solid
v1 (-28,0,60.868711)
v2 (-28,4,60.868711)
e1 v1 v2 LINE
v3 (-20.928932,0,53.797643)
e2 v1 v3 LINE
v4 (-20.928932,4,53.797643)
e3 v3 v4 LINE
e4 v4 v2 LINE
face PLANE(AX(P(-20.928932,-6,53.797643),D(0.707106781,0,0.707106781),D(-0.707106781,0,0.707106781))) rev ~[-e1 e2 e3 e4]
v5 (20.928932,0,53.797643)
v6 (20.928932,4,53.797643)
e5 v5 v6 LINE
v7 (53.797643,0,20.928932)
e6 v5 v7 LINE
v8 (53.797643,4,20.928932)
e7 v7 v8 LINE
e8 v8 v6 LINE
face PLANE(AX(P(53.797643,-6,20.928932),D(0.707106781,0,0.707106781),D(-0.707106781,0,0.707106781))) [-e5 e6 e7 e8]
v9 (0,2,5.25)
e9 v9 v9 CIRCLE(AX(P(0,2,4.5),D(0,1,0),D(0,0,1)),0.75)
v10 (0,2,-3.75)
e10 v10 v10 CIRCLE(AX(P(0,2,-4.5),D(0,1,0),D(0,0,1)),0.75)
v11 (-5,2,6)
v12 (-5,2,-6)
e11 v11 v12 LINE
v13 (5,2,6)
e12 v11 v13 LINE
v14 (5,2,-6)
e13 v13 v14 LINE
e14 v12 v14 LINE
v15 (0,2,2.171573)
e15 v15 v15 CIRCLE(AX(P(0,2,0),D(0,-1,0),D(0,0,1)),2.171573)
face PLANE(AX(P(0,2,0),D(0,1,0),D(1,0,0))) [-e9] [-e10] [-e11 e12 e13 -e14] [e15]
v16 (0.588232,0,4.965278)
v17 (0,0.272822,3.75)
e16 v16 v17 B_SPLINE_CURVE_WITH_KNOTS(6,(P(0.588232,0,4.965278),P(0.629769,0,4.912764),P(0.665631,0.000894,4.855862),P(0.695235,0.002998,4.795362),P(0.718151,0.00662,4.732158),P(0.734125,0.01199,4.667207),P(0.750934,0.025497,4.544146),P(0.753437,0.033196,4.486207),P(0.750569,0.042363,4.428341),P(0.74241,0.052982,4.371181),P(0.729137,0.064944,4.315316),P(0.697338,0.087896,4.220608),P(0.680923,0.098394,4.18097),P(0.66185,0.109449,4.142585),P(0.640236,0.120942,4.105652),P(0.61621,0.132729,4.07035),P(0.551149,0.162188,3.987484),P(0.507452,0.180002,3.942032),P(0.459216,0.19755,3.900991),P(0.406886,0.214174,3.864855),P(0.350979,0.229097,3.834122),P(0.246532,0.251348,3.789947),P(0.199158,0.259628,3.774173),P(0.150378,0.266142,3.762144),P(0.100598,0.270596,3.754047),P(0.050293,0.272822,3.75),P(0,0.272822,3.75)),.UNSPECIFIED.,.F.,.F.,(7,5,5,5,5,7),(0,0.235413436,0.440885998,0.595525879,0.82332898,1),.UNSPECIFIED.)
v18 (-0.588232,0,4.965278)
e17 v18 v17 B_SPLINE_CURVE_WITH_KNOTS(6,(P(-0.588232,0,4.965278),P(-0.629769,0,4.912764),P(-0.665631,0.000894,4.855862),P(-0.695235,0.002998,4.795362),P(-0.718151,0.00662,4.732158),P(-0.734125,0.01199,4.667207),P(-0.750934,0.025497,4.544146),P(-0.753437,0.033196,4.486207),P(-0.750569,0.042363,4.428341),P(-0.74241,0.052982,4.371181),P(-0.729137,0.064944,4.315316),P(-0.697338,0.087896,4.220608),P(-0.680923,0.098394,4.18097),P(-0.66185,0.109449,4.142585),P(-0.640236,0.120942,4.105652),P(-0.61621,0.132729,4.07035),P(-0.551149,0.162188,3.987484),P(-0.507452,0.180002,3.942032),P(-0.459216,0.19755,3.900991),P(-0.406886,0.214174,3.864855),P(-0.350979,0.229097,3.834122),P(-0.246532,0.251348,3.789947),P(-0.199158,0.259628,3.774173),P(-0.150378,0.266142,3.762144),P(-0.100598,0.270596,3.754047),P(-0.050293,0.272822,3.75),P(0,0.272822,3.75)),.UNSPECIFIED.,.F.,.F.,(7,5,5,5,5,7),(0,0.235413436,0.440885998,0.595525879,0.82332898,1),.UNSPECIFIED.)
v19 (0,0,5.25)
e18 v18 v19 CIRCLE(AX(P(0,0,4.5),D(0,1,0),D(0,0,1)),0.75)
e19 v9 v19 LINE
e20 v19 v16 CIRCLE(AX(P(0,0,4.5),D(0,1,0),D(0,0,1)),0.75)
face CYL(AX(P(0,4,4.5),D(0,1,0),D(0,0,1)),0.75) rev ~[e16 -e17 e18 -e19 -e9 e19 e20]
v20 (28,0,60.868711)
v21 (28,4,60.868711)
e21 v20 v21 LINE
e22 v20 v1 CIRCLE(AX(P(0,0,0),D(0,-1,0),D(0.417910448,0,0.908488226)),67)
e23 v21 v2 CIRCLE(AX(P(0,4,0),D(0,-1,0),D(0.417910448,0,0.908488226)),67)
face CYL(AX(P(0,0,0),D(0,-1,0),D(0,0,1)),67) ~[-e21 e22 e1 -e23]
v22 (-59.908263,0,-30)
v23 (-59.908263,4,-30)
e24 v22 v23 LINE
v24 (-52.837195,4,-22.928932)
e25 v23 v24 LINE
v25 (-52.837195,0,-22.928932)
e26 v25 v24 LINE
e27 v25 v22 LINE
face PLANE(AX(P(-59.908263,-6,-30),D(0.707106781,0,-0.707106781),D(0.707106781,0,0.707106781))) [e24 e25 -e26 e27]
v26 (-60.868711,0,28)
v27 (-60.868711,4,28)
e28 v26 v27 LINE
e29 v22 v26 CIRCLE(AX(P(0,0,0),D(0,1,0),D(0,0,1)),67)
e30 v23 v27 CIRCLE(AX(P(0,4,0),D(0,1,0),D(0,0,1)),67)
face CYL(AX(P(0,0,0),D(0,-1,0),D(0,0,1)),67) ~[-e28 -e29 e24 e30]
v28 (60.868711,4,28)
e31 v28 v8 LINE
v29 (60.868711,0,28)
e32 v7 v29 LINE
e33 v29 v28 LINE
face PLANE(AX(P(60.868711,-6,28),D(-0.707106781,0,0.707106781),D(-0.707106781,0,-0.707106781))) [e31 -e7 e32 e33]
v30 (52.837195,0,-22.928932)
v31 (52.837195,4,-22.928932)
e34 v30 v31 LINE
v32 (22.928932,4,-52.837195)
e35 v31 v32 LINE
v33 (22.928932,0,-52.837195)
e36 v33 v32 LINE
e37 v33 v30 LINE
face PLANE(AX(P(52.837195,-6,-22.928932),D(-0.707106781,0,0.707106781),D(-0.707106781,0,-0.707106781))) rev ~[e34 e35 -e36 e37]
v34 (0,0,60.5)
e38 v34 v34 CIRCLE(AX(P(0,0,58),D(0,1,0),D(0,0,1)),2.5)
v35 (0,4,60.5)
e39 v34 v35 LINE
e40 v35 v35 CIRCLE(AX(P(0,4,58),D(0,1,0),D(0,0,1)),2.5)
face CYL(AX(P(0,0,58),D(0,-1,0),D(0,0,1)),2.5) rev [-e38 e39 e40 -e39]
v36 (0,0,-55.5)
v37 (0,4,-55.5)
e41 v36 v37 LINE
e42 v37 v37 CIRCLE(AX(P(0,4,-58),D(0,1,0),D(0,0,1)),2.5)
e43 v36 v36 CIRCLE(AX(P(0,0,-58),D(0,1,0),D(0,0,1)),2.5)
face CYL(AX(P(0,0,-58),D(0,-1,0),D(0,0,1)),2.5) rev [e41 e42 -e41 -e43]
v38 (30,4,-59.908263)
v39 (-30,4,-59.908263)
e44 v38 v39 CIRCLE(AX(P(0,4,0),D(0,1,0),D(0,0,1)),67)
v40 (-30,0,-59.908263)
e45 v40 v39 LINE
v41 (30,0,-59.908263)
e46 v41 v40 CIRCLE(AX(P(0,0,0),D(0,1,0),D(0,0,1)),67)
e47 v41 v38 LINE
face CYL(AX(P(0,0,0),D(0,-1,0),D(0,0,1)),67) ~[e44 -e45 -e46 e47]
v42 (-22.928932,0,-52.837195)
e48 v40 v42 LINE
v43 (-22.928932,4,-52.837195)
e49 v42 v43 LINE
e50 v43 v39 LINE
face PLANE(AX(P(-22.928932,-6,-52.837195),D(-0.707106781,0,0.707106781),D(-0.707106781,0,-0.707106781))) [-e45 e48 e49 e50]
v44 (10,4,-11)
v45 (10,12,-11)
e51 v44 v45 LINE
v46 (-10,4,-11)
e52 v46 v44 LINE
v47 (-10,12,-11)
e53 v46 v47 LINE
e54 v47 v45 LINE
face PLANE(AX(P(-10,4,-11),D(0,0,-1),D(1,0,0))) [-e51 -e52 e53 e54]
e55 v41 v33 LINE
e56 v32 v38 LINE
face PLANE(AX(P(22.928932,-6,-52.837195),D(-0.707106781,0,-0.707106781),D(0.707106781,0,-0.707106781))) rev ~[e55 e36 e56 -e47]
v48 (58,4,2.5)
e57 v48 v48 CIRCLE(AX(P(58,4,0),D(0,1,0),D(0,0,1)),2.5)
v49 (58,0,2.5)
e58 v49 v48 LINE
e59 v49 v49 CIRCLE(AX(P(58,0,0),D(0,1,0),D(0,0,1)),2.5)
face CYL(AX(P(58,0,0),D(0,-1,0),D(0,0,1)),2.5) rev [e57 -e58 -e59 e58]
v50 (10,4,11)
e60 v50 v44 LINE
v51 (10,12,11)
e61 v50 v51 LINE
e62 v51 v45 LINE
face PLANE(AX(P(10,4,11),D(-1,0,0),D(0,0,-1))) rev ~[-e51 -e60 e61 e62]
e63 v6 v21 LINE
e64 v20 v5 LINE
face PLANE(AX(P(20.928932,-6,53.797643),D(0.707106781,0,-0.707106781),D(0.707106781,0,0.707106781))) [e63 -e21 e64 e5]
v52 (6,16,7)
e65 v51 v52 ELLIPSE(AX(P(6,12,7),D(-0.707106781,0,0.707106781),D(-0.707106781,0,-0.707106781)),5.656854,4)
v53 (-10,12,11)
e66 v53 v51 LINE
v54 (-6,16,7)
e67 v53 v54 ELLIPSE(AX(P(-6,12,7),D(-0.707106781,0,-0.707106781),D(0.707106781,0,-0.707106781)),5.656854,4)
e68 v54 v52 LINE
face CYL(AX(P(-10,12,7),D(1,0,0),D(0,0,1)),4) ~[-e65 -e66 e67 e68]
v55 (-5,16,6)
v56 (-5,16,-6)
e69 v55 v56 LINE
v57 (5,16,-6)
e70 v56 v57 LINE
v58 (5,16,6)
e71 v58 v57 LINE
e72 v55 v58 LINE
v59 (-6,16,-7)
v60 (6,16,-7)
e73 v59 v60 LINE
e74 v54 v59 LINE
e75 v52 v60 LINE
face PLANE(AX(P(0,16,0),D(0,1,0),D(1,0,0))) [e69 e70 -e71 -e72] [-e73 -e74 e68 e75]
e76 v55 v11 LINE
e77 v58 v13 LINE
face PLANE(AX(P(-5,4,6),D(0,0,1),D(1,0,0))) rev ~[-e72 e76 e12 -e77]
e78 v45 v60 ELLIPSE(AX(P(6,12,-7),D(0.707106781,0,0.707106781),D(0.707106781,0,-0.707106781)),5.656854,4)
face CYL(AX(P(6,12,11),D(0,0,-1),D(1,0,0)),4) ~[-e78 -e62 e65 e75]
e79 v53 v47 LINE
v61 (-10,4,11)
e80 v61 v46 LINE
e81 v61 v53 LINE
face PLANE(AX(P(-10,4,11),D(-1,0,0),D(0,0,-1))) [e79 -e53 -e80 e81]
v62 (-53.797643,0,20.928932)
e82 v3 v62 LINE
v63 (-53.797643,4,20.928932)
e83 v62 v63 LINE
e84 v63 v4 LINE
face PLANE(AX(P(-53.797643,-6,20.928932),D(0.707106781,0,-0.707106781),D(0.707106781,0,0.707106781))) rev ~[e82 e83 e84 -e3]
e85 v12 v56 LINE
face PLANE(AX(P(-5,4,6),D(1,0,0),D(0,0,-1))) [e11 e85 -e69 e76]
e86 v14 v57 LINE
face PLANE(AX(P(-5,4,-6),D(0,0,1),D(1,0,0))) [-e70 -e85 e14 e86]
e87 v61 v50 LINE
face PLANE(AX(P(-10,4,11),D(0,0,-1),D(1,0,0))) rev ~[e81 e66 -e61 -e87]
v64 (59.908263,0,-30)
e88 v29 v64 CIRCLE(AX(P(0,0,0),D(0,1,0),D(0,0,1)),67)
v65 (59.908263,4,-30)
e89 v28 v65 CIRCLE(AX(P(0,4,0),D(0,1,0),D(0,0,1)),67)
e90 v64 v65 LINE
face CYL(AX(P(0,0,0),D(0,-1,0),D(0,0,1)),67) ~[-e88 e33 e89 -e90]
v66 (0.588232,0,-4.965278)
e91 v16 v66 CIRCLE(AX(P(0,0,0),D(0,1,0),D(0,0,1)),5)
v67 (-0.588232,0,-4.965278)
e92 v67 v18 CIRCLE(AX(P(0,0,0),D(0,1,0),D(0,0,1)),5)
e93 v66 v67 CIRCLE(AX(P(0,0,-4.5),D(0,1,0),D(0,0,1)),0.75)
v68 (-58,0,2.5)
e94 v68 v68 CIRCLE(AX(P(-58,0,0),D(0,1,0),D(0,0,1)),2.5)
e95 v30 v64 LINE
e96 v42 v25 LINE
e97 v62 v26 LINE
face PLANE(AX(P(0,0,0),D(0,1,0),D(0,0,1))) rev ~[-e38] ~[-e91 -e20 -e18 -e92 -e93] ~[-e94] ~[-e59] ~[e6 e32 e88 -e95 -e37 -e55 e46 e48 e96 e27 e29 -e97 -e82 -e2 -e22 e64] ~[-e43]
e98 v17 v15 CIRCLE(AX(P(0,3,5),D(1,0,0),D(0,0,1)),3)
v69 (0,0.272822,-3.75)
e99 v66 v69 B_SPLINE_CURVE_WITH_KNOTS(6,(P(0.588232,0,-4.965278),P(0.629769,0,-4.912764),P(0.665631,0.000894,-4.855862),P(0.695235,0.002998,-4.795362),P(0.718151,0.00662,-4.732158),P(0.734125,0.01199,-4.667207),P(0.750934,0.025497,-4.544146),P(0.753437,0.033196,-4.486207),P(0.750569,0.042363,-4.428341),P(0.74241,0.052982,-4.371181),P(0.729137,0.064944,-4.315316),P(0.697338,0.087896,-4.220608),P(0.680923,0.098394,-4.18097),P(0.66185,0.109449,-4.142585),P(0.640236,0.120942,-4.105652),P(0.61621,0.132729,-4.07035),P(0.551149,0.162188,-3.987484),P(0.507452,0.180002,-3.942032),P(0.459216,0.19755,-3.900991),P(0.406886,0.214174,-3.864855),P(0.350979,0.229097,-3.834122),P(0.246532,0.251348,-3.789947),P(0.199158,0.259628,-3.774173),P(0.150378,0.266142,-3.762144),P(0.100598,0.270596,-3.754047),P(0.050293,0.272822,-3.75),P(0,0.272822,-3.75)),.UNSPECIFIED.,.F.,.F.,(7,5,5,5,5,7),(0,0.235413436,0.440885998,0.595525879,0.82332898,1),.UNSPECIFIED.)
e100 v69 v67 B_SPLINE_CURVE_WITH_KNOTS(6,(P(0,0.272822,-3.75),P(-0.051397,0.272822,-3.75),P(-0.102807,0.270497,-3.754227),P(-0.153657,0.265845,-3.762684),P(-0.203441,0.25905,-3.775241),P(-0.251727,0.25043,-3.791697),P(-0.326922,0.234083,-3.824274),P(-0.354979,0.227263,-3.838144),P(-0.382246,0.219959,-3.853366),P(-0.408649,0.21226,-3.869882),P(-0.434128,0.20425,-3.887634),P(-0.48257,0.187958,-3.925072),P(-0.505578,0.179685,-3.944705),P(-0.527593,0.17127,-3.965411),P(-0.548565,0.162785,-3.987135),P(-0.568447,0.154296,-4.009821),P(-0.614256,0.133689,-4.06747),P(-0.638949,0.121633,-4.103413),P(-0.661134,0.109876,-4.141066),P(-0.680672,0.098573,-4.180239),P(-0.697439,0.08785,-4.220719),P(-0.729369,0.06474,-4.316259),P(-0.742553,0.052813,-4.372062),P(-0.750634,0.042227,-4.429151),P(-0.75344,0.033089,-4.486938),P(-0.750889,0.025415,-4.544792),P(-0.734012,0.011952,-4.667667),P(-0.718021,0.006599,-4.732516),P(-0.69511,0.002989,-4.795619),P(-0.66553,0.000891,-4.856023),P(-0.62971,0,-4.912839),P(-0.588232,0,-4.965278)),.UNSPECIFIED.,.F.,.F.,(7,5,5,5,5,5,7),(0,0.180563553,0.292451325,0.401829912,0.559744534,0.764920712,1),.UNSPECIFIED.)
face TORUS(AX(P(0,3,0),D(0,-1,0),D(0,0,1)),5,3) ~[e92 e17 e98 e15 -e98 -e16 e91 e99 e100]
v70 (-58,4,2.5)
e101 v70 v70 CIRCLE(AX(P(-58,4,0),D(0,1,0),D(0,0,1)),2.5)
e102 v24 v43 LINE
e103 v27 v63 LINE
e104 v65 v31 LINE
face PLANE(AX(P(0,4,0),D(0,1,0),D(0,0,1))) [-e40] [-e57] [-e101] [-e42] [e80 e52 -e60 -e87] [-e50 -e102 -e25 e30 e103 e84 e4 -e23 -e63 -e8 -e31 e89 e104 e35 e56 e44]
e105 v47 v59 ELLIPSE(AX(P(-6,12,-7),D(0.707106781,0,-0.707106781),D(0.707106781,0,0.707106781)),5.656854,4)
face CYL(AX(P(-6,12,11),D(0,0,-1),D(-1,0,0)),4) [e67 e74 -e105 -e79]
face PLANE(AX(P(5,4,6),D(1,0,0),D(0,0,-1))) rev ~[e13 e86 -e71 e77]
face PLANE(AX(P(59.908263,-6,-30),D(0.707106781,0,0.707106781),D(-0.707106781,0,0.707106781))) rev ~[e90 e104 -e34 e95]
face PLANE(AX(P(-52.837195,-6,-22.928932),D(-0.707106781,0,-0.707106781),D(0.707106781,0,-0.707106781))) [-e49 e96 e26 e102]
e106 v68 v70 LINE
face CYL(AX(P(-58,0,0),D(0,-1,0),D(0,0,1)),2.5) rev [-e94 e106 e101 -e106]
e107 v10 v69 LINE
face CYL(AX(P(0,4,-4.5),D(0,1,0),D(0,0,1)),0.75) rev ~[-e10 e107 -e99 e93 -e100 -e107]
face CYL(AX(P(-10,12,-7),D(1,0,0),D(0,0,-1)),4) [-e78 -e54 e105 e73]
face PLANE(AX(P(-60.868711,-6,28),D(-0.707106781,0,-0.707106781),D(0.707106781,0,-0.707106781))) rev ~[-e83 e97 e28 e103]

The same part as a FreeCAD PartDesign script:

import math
import FreeCAD as App
import Part
import Sketcher

V = App.Vector
Q = App.Units.Quantity


def edges_at(feature, points):
    """Names of the edges that pass closest to the given points."""
    edges = feature.Shape.Edges
    near = lambda p: min(range(len(edges)), key=lambda i: edges[i].distToShape(Part.Vertex(*p))[0])
    return sorted({f"Edge{near(p) + 1}" for p in points})


def add_polygon(sketch, points):
    """Adds a closed chain of lines whose ends are joined by coincident constraints."""
    first, n = sketch.GeometryCount, len(points)
    for a, b in zip(points, points[1:] + points[:1]):
        sketch.addGeometry(Part.LineSegment(App.Vector(*a, 0), App.Vector(*b, 0)), False)
    for i in range(n):
        sketch.addConstraint(Sketcher.Constraint("Coincident", first + i, 2, first + (i + 1) % n, 1))

doc = App.newDocument("Part")
body = doc.addObject("PartDesign::Body", "Body")

# Sketch on XZ plane
sketch1 = doc.addObject("Sketcher::SketchObject", "Sketch")
body.addObject(sketch1)
sketch1.AttachmentSupport = (doc.XZ_Plane, [""])
sketch1.MapMode = "FlatFace"
sketch1.addGeometry(Part.Circle(V(0, 0, 0), V(0, 0, 1), 67), False)
sketch1.addGeometry(Part.Circle(V(0, -58, 0), V(0, 0, 1), 2.5), False)
sketch1.addGeometry(Part.Circle(V(-58, 0, 0), V(0, 0, 1), 2.5), False)
sketch1.addGeometry(Part.Circle(V(58, 0, 0), V(0, 0, 1), 2.5), False)
sketch1.addGeometry(Part.Circle(V(0, 58, 0), V(0, 0, 1), 2.5), False)
sketch1.addConstraint(Sketcher.Constraint("Coincident", 0, 3, -1, 1))
sketch1.addConstraint(Sketcher.Constraint("Equal", 1, 2))
sketch1.addConstraint(Sketcher.Constraint("Equal", 2, 3))
sketch1.addConstraint(Sketcher.Constraint("Equal", 3, 4))
sketch1.addConstraint(Sketcher.Constraint("Symmetric", 2, 3, 3, 3, -1, 1))
sketch1.addConstraint(Sketcher.Constraint("Symmetric", 1, 3, 4, 3, -1, 1))
sketch1.addConstraint(Sketcher.Constraint("PointOnObject", 1, 3, -2))
sketch1.addConstraint(Sketcher.Constraint("PointOnObject", 2, 3, -1))
sketch1.addConstraint(Sketcher.Constraint("Diameter", 0, Q("134 mm")))
sketch1.addConstraint(Sketcher.Constraint("Diameter", 1, Q("5 mm")))
sketch1.addConstraint(Sketcher.Constraint("DistanceY", 1, 3, -1, 1, Q("58 mm")))
sketch1.addConstraint(Sketcher.Constraint("DistanceX", 2, 3, -1, 1, Q("58 mm")))
pad1 = doc.addObject("PartDesign::Pad", "Pad")
body.addObject(pad1)
pad1.Profile = sketch1
pad1.Length = 4
pad1.Reversed = True

# Sketch on XZ plane
sketch2 = doc.addObject("Sketcher::SketchObject", "Sketch001")
body.addObject(sketch2)
sketch2.AttachmentSupport = (doc.XZ_Plane, [""])
sketch2.MapMode = "FlatFace"
sketch2.AttachmentOffset = App.Placement(V(0, 0, -4), App.Rotation())
sketch2.addGeometry(Part.Circle(V(0, 0, 0), V(0, 0, 1), 2), False)
sketch2.addConstraint(Sketcher.Constraint("Coincident", 0, 3, -1, 1))
sketch2.addConstraint(Sketcher.Constraint("Diameter", 0, Q("4 mm")))
pocket1 = doc.addObject("PartDesign::Pocket", "Pocket")
body.addObject(pocket1)
pocket1.Profile = sketch2
pocket1.Length = 4
pocket1.Reversed = True

# Sketch on XZ plane
sketch3 = doc.addObject("Sketcher::SketchObject", "Sketch002")
body.addObject(sketch3)
sketch3.AttachmentSupport = (doc.XZ_Plane, [""])
sketch3.MapMode = "FlatFace"
sketch3.AttachmentOffset = App.Placement(V(0, 0, -4), App.Rotation())
add_polygon(sketch3, [(-10, -11), (-10, 11), (10, 11), (10, -11)])  # lines 0-3
add_polygon(sketch3, [(5, 6), (-5, 6), (-5, -6), (5, -6)])  # lines 4-7
sketch3.addConstraint(Sketcher.Constraint("Vertical", 0))
sketch3.addConstraint(Sketcher.Constraint("Horizontal", 1))
sketch3.addConstraint(Sketcher.Constraint("Vertical", 2))
sketch3.addConstraint(Sketcher.Constraint("Horizontal", 3))
sketch3.addConstraint(Sketcher.Constraint("Horizontal", 4))
sketch3.addConstraint(Sketcher.Constraint("Vertical", 5))
sketch3.addConstraint(Sketcher.Constraint("Horizontal", 6))
sketch3.addConstraint(Sketcher.Constraint("Vertical", 7))
sketch3.addConstraint(Sketcher.Constraint("Symmetric", 0, 2, 2, 2, -1, 1))
sketch3.addConstraint(Sketcher.Constraint("Symmetric", 4, 2, 6, 2, -1, 1))
sketch3.addConstraint(Sketcher.Constraint("DistanceX", 1, 1, 1, 2, Q("20 mm")))
sketch3.addConstraint(Sketcher.Constraint("DistanceX", 4, 2, 4, 1, Q("10 mm")))
sketch3.addConstraint(Sketcher.Constraint("DistanceY", 0, 1, 0, 2, Q("22 mm")))
sketch3.addConstraint(Sketcher.Constraint("DistanceY", 5, 2, 5, 1, Q("12 mm")))
pad2 = doc.addObject("PartDesign::Pad", "Pad001")
body.addObject(pad2)
pad2.Profile = sketch3
pad2.Length = 12
pad2.Reversed = True
doc.recompute()

fillet = doc.addObject("PartDesign::Fillet", "Fillet")
body.addObject(fillet)
fillet.Base = (pad2, edges_at(pad2, [
    (10, 16, 0),
    (0, 16, -11),
    (-10, 16, 0),
    (0, 16, 11),
]))
fillet.Radius = 4
doc.recompute()

fillet2 = doc.addObject("PartDesign::Fillet", "Fillet001")
body.addObject(fillet2)
fillet2.Base = (fillet, edges_at(fillet, [(0, 0, -2)]))
fillet2.Radius = 3

# Sketch on XZ plane
sketch4 = doc.addObject("Sketcher::SketchObject", "Sketch003")
body.addObject(sketch4)
sketch4.AttachmentSupport = (doc.XZ_Plane, [""])
sketch4.MapMode = "FlatFace"
sketch4.AttachmentOffset = App.Placement(V(0, 0, 6), App.Rotation())
sketch4.addGeometry(Part.LineSegment(V(53, -23, 0), V(60, -30, 0)), False)
sketch4.addGeometry(Part.ArcOfCircle(Part.Circle(V(0, 0, 0), V(0, 0, 1), 67), math.radians(-63), math.radians(-27)), False)
sketch4.addGeometry(Part.LineSegment(V(30, -60, 0), V(23, -53, 0)), False)
sketch4.addGeometry(Part.LineSegment(V(23, -53, 0), V(53, -23, 0)), False)
sketch4.addGeometry(Part.LineSegment(V(-60, -30, 0), V(-53, -23, 0)), False)
sketch4.addGeometry(Part.LineSegment(V(-53, -23, 0), V(-23, -53, 0)), False)
sketch4.addGeometry(Part.LineSegment(V(-23, -53, 0), V(-30, -60, 0)), False)
sketch4.addGeometry(Part.ArcOfCircle(Part.Circle(V(0, 0, 0), V(0, 0, 1), 67), math.radians(-153), math.radians(-117)), False)
sketch4.addGeometry(Part.LineSegment(V(-21, 54, 0), V(-54, 21, 0)), False)
sketch4.addGeometry(Part.LineSegment(V(-54, 21, 0), V(-61, 28, 0)), False)
sketch4.addGeometry(Part.ArcOfCircle(Part.Circle(V(0, 0, 0), V(0, 0, 1), 67), math.radians(115), math.radians(155)), False)
sketch4.addGeometry(Part.LineSegment(V(-28, 61, 0), V(-21, 54, 0)), False)
sketch4.addGeometry(Part.LineSegment(V(54, 21, 0), V(21, 54, 0)), False)
sketch4.addGeometry(Part.LineSegment(V(21, 54, 0), V(28, 61, 0)), False)
sketch4.addGeometry(Part.ArcOfCircle(Part.Circle(V(0, 0, 0), V(0, 0, 1), 67), math.radians(25), math.radians(65)), False)
sketch4.addGeometry(Part.LineSegment(V(61, 28, 0), V(54, 21, 0)), False)
sketch4.addConstraint(Sketcher.Constraint("Coincident", 0, 2, 1, 2))
sketch4.addConstraint(Sketcher.Constraint("Coincident", 1, 1, 2, 1))
sketch4.addConstraint(Sketcher.Constraint("Coincident", 2, 2, 3, 1))
sketch4.addConstraint(Sketcher.Constraint("Coincident", 3, 2, 0, 1))
sketch4.addConstraint(Sketcher.Constraint("Coincident", 4, 2, 5, 1))
sketch4.addConstraint(Sketcher.Constraint("Coincident", 5, 2, 6, 1))
sketch4.addConstraint(Sketcher.Constraint("Coincident", 6, 2, 7, 2))
sketch4.addConstraint(Sketcher.Constraint("Coincident", 7, 1, 4, 1))
sketch4.addConstraint(Sketcher.Constraint("Coincident", 8, 2, 9, 1))
sketch4.addConstraint(Sketcher.Constraint("Coincident", 9, 2, 10, 2))
sketch4.addConstraint(Sketcher.Constraint("Coincident", 10, 1, 11, 1))
sketch4.addConstraint(Sketcher.Constraint("Coincident", 11, 2, 8, 1))
sketch4.addConstraint(Sketcher.Constraint("Coincident", 12, 2, 13, 1))
sketch4.addConstraint(Sketcher.Constraint("Coincident", 13, 2, 14, 2))
sketch4.addConstraint(Sketcher.Constraint("Coincident", 14, 1, 15, 1))
sketch4.addConstraint(Sketcher.Constraint("Coincident", 15, 2, 12, 1))
sketch4.addConstraint(Sketcher.Constraint("Coincident", 1, 3, -1, 1))
sketch4.addConstraint(Sketcher.Constraint("Coincident", 7, 3, -1, 1))
sketch4.addConstraint(Sketcher.Constraint("Coincident", 10, 3, -1, 1))
sketch4.addConstraint(Sketcher.Constraint("Coincident", 14, 3, -1, 1))
sketch4.addConstraint(Sketcher.Constraint("Equal", 1, 7))
sketch4.addConstraint(Sketcher.Constraint("Equal", 7, 10))
sketch4.addConstraint(Sketcher.Constraint("Equal", 10, 14))
sketch4.addConstraint(Sketcher.Constraint("Symmetric", 3, 2, 4, 2, -2))
sketch4.addConstraint(Sketcher.Constraint("Symmetric", 2, 2, 5, 2, -2))
sketch4.addConstraint(Sketcher.Constraint("Symmetric", 11, 2, 12, 2, -2))
sketch4.addConstraint(Sketcher.Constraint("Symmetric", 8, 2, 15, 2, -2))
sketch4.addConstraint(Sketcher.Constraint("Parallel", 0, 2))
sketch4.addConstraint(Sketcher.Constraint("Perpendicular", 2, 3))
sketch4.addConstraint(Sketcher.Constraint("Parallel", 3, 4))
sketch4.addConstraint(Sketcher.Constraint("Perpendicular", 4, 5))
sketch4.addConstraint(Sketcher.Constraint("Perpendicular", 5, 6))
sketch4.addConstraint(Sketcher.Constraint("Parallel", 6, 8))
sketch4.addConstraint(Sketcher.Constraint("Perpendicular", 8, 9))
sketch4.addConstraint(Sketcher.Constraint("Parallel", 9, 11))
sketch4.addConstraint(Sketcher.Constraint("Perpendicular", 12, 13))
sketch4.addConstraint(Sketcher.Constraint("Parallel", 13, 15))
sketch4.addConstraint(Sketcher.Constraint("Equal", 0, 2))
sketch4.addConstraint(Sketcher.Constraint("Equal", 6, 9))
sketch4.addConstraint(Sketcher.Constraint("Equal", 9, 11))
sketch4.addConstraint(Sketcher.Constraint("Radius", 1, Q("67 mm")))
sketch4.addConstraint(Sketcher.Constraint("Distance", 0, Q("10 mm")))
sketch4.addConstraint(Sketcher.Constraint("DistanceY", 0, 2, -1, 1, Q("30 mm")))
sketch4.addConstraint(Sketcher.Constraint("DistanceY", -1, 1, 9, 2, Q("28 mm")))
pocket2 = doc.addObject("PartDesign::Pocket", "Pocket001")
body.addObject(pocket2)
pocket2.Profile = sketch4
pocket2.Length = 10

# Sketch on XZ plane
sketch5 = doc.addObject("Sketcher::SketchObject", "Sketch004")
body.addObject(sketch5)
sketch5.AttachmentSupport = (doc.XZ_Plane, [""])
sketch5.MapMode = "FlatFace"
sketch5.AttachmentOffset = App.Placement(V(0, 0, -4), App.Rotation())
sketch5.addGeometry(Part.Circle(V(0, -4.5, 0), V(0, 0, 1), 0.8), False)
sketch5.addGeometry(Part.Circle(V(0, 4.5, 0), V(0, 0, 1), 0.8), False)
sketch5.addConstraint(Sketcher.Constraint("Equal", 0, 1))
sketch5.addConstraint(Sketcher.Constraint("Symmetric", 0, 3, 1, 3, -1, 1))
sketch5.addConstraint(Sketcher.Constraint("PointOnObject", 0, 3, -2))
sketch5.addConstraint(Sketcher.Constraint("Diameter", 0, Q("1.5 mm")))
sketch5.addConstraint(Sketcher.Constraint("DistanceY", 0, 3, 1, 3, Q("9 mm")))
pocket3 = doc.addObject("PartDesign::Pocket", "Pocket002")
body.addObject(pocket3)
pocket3.Profile = sketch5
pocket3.Length = 10
pocket3.Reversed = True

# Sketch on XZ plane
sketch6 = doc.addObject("Sketcher::SketchObject", "Sketch005")
body.addObject(sketch6)
sketch6.AttachmentSupport = (doc.XZ_Plane, [""])
sketch6.MapMode = "FlatFace"
sketch6.AttachmentOffset = App.Placement(V(0, 0, -4), App.Rotation())
add_polygon(sketch6, [(-5, -6), (-5, 6), (5, 6), (5, -6)])  # lines 0-3
sketch6.addConstraint(Sketcher.Constraint("Vertical", 0))
sketch6.addConstraint(Sketcher.Constraint("Horizontal", 1))
sketch6.addConstraint(Sketcher.Constraint("Vertical", 2))
sketch6.addConstraint(Sketcher.Constraint("Horizontal", 3))
sketch6.addConstraint(Sketcher.Constraint("Symmetric", 0, 2, 2, 2, -1, 1))
sketch6.addConstraint(Sketcher.Constraint("DistanceX", 1, 1, 1, 2, Q("10 mm")))
sketch6.addConstraint(Sketcher.Constraint("DistanceY", 0, 1, 0, 2, Q("12 mm")))
pocket4 = doc.addObject("PartDesign::Pocket", "Pocket003")
body.addObject(pocket4)
pocket4.Profile = sketch6
pocket4.Length = 2
pocket4.Reversed = True

doc.recompute()
